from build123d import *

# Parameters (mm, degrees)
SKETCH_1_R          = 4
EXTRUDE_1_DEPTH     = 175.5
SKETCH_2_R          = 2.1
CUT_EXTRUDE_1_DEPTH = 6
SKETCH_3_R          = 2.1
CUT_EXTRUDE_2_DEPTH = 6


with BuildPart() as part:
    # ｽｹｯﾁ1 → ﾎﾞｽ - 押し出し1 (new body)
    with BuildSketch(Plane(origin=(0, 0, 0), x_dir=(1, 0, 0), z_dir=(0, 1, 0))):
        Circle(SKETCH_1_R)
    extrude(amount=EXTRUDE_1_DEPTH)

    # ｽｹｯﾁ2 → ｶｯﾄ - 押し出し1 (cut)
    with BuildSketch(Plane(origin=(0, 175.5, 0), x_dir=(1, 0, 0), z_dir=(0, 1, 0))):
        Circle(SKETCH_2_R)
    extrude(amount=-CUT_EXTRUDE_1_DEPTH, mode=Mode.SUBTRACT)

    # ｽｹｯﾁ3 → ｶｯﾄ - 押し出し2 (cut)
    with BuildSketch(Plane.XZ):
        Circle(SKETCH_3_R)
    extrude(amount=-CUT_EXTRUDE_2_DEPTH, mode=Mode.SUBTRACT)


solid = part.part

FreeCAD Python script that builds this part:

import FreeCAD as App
import Part
import Sketcher

V = App.Vector
Q = App.Units.Quantity

doc = App.newDocument("Part")
body = doc.addObject("PartDesign::Body", "Body")

sketch1 = body.newObject("Sketcher::SketchObject", "Sketch")
sketch1.AttachmentSupport = (doc.getObject("XZ_Plane"), [""])
sketch1.MapMode = "FlatFace"
sketch1.addGeometry(Part.Circle(V(0, 0, 0), V(0, 0, 1), 4), False)
sketch1.addConstraint([
    Sketcher.Constraint("Coincident", 0, 3, -1, 1),
    Sketcher.Constraint("Diameter", 0, Q("8 mm")),
])
pad1 = body.newObject("PartDesign::Pad", "Pad")
pad1.Profile = sketch1
pad1.Length = 175.5
pad1.Reversed = True

sketch2 = body.newObject("Sketcher::SketchObject", "Sketch001")
sketch2.AttachmentSupport = (doc.getObject("XZ_Plane"), [""])
sketch2.MapMode = "FlatFace"
sketch2.AttachmentOffset = App.Placement(V(0, 0, -175.5), App.Rotation())
sketch2.addGeometry(Part.Circle(V(0, 0, 0), V(0, 0, 1), 2.1), False)
sketch2.addConstraint([
    Sketcher.Constraint("Coincident", 0, 3, -1, 1),
    Sketcher.Constraint("Diameter", 0, Q("4.2 mm")),
])
pocket1 = body.newObject("PartDesign::Pocket", "Pocket")
pocket1.Profile = sketch2
pocket1.Length = 6
pocket1.Reversed = True

sketch3 = body.newObject("Sketcher::SketchObject", "Sketch002")
sketch3.AttachmentSupport = (doc.getObject("XZ_Plane"), [""])
sketch3.MapMode = "FlatFace"
sketch3.addGeometry(Part.Circle(V(0, 0, 0), V(0, 0, 1), 2.1), False)
sketch3.addConstraint([
    Sketcher.Constraint("Coincident", 0, 3, -1, 1),
    Sketcher.Constraint("Diameter", 0, Q("4.2 mm")),
])
pocket2 = body.newObject("PartDesign::Pocket", "Pocket001")
pocket2.Profile = sketch3
pocket2.Length = 6

doc.recompute()
